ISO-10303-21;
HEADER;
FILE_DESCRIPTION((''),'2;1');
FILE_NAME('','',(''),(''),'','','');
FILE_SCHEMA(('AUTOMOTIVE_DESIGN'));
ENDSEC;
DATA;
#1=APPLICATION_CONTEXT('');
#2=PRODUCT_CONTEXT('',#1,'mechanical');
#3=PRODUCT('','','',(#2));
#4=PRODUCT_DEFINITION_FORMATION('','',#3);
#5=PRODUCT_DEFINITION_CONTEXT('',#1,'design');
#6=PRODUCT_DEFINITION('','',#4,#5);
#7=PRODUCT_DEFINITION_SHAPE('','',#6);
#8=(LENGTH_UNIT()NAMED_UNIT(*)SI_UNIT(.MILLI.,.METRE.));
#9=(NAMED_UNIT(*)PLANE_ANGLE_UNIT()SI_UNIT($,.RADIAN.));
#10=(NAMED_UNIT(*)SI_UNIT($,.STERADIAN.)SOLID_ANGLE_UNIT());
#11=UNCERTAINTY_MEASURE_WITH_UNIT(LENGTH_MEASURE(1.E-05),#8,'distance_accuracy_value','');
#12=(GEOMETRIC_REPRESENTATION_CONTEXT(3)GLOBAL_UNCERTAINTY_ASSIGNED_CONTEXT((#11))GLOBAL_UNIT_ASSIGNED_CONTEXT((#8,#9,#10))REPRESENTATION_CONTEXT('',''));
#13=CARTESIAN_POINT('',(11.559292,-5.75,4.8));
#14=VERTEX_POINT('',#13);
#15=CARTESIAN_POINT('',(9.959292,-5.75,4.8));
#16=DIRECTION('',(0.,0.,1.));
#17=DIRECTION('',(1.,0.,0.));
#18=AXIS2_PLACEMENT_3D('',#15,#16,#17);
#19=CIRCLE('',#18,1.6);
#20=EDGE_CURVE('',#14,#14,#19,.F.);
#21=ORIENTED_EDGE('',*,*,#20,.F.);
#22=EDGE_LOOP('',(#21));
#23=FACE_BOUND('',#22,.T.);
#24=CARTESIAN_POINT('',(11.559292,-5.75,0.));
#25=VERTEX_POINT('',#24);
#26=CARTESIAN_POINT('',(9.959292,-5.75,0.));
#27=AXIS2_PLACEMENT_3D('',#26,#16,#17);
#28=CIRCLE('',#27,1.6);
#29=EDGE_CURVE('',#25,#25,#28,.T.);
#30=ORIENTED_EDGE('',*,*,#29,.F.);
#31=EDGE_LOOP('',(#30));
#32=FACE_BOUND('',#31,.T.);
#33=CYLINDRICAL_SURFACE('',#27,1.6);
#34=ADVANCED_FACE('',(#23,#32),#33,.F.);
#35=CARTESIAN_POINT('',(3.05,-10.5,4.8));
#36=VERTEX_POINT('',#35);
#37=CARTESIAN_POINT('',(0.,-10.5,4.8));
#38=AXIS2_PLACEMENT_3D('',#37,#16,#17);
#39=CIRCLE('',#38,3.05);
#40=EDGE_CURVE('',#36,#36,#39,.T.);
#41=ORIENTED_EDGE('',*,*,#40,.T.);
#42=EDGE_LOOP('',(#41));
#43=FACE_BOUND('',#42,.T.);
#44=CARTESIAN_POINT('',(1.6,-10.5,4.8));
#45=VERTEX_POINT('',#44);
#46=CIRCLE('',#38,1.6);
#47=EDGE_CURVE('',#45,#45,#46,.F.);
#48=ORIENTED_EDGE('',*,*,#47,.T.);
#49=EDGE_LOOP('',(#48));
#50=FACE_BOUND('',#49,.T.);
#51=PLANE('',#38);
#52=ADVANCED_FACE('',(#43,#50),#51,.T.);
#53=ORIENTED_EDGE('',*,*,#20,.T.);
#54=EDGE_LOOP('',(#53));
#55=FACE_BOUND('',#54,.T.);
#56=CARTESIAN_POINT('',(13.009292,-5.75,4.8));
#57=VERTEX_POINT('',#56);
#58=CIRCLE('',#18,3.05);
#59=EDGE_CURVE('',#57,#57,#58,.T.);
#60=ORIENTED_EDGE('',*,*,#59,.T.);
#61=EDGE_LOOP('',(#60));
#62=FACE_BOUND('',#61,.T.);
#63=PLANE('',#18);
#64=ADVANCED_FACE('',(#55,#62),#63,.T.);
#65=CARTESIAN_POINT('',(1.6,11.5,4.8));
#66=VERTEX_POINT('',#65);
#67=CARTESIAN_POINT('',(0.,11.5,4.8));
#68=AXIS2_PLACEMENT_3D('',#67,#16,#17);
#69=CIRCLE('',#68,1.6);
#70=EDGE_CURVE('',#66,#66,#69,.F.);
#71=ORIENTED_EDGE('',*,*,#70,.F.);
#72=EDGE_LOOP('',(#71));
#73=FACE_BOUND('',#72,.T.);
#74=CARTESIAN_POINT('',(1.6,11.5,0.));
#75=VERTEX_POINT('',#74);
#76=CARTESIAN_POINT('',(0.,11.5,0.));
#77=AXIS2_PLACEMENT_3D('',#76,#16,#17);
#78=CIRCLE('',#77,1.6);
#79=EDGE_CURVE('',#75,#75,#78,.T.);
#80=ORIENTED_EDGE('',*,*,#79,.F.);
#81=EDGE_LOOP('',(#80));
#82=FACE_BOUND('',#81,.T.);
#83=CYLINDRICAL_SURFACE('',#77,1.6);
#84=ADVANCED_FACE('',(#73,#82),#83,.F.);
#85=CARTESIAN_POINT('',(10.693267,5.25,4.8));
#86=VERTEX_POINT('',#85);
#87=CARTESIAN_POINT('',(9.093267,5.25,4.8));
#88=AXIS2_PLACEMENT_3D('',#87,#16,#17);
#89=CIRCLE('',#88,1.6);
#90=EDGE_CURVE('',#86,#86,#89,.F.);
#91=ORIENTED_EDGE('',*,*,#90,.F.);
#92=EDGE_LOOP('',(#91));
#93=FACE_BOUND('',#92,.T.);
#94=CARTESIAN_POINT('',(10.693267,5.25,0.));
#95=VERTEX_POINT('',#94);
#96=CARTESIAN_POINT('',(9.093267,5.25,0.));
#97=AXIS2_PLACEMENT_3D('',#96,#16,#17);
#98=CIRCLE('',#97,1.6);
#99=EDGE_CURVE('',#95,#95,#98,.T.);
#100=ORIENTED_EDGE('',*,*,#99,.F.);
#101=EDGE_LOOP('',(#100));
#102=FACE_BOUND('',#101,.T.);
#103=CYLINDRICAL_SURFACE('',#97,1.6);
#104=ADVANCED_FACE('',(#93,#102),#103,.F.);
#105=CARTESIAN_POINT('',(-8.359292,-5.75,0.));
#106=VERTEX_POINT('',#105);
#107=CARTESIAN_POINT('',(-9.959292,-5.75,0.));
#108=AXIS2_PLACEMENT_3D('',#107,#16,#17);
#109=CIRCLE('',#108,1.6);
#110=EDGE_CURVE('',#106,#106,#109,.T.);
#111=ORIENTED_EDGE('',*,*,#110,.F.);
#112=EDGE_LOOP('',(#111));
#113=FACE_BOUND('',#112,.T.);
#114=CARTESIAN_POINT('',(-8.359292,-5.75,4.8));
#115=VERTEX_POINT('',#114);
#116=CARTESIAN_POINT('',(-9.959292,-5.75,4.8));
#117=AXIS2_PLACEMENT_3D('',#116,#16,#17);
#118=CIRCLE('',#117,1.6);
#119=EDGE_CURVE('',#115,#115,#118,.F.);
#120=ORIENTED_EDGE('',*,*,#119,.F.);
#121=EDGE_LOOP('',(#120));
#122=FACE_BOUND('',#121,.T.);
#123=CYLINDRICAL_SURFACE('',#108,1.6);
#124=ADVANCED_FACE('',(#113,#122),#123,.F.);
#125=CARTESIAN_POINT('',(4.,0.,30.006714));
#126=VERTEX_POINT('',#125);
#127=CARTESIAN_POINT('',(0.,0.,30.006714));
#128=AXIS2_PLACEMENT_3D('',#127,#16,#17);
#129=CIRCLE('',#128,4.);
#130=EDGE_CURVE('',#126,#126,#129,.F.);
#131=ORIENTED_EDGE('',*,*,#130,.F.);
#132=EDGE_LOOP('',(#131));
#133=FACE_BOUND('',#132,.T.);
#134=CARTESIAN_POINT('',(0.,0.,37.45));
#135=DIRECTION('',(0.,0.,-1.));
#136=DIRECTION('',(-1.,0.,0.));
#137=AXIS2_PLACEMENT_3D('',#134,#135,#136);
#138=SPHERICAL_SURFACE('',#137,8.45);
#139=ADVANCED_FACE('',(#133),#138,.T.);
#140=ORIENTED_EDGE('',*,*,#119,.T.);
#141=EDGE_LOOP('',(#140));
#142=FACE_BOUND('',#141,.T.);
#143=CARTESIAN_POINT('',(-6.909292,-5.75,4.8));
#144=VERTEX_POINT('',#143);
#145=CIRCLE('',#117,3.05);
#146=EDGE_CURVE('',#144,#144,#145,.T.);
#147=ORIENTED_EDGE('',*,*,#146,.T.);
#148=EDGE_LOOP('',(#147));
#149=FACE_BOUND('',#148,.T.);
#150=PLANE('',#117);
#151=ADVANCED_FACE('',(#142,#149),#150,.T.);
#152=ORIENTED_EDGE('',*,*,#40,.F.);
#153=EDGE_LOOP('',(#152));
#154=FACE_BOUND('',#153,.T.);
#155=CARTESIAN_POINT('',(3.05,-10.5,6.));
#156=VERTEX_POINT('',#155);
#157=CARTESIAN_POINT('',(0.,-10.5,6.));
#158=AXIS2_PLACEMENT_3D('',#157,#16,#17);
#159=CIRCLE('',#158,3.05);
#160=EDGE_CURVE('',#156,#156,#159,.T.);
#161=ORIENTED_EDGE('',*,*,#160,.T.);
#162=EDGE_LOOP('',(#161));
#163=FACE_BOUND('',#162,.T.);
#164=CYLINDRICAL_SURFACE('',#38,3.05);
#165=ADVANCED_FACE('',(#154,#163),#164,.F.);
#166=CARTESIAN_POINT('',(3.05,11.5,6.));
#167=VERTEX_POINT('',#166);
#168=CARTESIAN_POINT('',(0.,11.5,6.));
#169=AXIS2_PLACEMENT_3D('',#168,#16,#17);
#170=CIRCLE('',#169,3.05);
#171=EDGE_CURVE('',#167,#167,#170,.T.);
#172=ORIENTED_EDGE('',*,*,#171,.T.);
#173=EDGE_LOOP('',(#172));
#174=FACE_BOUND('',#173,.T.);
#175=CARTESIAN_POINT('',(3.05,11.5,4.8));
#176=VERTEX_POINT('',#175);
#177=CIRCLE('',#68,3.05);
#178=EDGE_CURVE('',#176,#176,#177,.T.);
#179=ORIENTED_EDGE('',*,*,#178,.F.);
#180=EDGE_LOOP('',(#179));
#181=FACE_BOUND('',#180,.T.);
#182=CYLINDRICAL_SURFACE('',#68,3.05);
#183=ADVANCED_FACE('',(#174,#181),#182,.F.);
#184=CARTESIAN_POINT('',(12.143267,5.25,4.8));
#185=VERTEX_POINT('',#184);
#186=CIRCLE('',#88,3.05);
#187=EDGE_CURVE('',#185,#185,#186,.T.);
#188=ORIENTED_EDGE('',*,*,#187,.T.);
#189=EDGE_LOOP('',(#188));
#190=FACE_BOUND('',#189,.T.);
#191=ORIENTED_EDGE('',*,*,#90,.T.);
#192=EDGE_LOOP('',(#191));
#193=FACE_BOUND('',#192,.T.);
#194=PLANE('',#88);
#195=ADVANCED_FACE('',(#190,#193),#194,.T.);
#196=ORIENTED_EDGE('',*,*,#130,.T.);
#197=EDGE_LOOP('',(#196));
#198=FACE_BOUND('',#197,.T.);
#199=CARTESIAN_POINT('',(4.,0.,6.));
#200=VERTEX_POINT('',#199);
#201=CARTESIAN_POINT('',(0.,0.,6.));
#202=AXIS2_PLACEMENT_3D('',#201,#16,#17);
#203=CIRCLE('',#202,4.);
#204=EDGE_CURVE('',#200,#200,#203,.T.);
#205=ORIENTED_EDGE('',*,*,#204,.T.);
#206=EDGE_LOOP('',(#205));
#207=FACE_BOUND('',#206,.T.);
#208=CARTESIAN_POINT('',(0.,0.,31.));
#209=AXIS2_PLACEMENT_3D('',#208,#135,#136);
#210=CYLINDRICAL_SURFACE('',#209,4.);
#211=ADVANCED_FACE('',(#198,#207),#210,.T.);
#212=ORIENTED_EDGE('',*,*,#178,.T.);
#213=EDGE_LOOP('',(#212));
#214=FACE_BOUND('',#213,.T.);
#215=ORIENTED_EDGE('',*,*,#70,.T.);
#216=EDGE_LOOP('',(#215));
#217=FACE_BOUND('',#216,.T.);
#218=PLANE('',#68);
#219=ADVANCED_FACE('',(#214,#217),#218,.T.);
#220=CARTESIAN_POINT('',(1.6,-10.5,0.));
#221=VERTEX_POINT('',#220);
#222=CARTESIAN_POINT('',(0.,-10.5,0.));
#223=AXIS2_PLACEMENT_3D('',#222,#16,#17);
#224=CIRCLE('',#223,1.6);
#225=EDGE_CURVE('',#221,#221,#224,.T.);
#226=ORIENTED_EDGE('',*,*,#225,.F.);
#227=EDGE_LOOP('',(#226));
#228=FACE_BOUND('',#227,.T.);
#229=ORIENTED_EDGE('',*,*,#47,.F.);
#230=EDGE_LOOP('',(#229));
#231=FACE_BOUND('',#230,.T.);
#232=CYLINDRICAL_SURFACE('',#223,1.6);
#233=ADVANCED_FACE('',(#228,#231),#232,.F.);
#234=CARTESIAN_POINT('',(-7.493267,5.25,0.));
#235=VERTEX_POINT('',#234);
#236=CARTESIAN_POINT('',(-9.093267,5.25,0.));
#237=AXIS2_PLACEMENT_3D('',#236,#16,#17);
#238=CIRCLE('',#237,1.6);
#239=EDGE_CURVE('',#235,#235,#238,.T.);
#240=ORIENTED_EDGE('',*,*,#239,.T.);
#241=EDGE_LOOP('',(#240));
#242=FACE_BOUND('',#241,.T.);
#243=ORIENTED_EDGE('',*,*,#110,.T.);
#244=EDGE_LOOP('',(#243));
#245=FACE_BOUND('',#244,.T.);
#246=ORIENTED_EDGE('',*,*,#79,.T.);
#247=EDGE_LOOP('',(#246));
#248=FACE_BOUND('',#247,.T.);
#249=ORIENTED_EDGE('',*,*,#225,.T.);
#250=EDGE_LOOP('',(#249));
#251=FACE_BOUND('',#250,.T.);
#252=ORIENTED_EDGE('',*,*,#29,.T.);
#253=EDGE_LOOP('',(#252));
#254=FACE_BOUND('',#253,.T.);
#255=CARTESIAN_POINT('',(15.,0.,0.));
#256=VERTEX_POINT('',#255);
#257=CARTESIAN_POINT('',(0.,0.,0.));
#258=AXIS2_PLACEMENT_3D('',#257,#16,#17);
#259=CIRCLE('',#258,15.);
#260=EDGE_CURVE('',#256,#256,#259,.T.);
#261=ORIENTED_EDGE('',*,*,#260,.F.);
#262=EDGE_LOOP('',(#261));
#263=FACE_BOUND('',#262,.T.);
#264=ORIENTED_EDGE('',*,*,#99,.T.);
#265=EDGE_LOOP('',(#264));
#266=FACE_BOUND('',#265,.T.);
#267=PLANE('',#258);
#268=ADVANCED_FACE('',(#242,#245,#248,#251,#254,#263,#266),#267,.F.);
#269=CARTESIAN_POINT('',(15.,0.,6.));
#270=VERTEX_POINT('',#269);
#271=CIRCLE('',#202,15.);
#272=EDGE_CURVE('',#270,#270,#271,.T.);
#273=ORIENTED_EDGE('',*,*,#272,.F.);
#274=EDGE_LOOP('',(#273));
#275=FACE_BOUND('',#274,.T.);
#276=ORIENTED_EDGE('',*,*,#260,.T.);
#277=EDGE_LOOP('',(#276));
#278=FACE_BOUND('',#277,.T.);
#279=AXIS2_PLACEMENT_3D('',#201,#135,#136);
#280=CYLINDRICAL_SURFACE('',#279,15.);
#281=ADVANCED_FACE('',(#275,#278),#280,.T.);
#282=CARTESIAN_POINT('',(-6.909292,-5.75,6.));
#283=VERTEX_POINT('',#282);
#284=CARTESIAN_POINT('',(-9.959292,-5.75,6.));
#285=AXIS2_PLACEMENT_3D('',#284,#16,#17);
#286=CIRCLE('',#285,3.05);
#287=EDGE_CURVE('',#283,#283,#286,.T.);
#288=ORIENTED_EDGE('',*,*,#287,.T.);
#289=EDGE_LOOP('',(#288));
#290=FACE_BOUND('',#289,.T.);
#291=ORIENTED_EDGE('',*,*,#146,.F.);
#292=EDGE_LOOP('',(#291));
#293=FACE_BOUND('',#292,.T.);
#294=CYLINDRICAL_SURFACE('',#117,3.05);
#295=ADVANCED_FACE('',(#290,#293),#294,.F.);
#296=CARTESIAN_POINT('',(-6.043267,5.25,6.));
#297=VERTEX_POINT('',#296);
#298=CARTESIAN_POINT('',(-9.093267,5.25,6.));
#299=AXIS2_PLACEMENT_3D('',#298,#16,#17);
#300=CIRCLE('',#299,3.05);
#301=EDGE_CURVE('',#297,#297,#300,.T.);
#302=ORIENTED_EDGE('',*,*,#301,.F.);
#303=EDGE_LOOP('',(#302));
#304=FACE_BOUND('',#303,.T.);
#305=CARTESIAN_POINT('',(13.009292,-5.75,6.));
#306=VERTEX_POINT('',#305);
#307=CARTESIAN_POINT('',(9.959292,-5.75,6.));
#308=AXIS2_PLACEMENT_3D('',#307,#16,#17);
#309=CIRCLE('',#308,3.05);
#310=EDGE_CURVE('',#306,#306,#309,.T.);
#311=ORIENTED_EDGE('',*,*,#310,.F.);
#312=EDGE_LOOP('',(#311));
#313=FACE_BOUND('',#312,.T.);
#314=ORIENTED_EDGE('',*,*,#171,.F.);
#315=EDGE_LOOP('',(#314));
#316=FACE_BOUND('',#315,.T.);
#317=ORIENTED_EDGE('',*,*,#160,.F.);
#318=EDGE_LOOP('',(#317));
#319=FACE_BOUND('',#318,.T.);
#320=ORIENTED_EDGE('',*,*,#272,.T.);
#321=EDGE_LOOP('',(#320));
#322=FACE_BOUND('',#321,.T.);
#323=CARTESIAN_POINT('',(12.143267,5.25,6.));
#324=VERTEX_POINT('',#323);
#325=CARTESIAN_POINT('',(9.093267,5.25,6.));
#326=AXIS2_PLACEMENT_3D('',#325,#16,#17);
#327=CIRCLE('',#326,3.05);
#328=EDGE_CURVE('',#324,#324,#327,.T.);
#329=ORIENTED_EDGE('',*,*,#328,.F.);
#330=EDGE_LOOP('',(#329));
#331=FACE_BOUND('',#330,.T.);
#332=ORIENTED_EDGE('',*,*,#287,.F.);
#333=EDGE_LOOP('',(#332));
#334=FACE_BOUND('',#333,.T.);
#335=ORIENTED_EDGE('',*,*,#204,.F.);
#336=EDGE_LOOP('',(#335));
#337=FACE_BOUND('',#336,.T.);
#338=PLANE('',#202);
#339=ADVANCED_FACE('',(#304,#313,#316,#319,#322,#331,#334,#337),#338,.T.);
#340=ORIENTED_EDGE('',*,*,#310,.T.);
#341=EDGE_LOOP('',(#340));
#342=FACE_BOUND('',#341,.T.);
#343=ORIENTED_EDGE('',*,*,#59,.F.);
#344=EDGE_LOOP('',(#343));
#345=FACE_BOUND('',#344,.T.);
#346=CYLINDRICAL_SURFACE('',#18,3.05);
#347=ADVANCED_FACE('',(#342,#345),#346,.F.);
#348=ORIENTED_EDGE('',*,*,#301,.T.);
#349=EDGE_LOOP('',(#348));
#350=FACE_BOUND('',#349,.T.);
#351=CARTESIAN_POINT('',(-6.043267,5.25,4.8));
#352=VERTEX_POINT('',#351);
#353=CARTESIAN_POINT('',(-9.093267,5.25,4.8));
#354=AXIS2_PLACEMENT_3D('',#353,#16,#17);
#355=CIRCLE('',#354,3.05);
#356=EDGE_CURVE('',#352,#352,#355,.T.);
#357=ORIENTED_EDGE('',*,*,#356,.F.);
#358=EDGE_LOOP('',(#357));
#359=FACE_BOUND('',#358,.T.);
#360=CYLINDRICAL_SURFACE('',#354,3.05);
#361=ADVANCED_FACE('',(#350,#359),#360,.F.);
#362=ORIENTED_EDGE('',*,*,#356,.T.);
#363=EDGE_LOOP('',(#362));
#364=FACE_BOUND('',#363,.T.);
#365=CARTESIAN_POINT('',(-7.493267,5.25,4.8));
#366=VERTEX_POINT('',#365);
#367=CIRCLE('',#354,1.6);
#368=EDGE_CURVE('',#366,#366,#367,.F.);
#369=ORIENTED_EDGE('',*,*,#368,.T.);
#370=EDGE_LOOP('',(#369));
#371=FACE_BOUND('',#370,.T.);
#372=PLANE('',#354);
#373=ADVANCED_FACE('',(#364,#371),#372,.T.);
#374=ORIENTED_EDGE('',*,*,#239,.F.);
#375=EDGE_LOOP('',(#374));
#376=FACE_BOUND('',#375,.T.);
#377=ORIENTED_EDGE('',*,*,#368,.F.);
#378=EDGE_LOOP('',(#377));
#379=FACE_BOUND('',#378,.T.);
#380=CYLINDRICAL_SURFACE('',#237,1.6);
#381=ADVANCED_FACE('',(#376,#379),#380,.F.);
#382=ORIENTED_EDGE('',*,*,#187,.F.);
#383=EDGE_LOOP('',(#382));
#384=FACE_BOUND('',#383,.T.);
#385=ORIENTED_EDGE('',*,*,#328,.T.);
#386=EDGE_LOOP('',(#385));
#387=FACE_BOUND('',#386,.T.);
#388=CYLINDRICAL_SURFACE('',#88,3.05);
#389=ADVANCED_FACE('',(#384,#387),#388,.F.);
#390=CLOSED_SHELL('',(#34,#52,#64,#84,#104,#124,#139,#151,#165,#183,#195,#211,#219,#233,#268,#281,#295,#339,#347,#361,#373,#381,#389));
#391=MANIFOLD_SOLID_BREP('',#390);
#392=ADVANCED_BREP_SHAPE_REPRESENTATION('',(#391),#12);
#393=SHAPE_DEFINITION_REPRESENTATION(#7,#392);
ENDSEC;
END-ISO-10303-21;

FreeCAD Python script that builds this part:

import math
import FreeCAD as App
import Part
import Sketcher
from FreeCAD import Vector
Q = App.Units.Quantity

doc = App.newDocument("Part")
params = doc.addObject("Spreadsheet::Sheet", "Params")
for row, (alias, value) in enumerate([
    ("sketch1_diameter", "30 mm"),
    ("pad1_length", "6 mm"),
    ("sketch2_diameter", "3.2 mm"),
    ("sketch3_diameter", "6.1 mm"),
    ("pocket2_length", "1.2 mm"),
    ("sketch4_diameter", "8 mm"),
    ("pad2_length", "25 mm"),
    ("sketch5_radius", "8.45 mm"),
    ("revolution_angle", "360 deg"),
], start=1):
    params.set(f"A{row}", alias)
    params.set(f"B{row}", "=" + value)
    params.setAlias(f"B{row}", alias)

body = doc.addObject("PartDesign::Body", "Body")

# Sketch on XY plane
sketch1 = body.newObject("Sketcher::SketchObject", "Sketch")
sketch1.AttachmentSupport = (doc.getObject("XY_Plane"), [""])
sketch1.MapMode = "FlatFace"
sketch1.addGeometry(Part.Circle(Vector(0, 0, 0), Vector(0, 0, 1), 15), False)
sketch1.addConstraint([
    Sketcher.Constraint("Coincident", 0, 3, -1, 1),
    Sketcher.Constraint("Diameter", 0, Q("30 mm")),
])
sketch1.setExpression("Constraints[1]", "Params.sketch1_diameter")
pad1 = body.newObject("PartDesign::Pad", "Pad")
pad1.Profile = sketch1
pad1.setExpression("Length", "Params.pad1_length")

# Sketch on XY plane
sketch2 = body.newObject("Sketcher::SketchObject", "Sketch001")
sketch2.AttachmentSupport = (doc.getObject("XY_Plane"), [""])
sketch2.MapMode = "FlatFace"
sketch2.AttachmentOffset = App.Placement(Vector(0, 0, 6), App.Rotation())
sketch2.addGeometry([
    Part.Circle(Vector(0, 11.5, 0), Vector(0, 0, 1), 1.6),  # 0
    Part.Circle(Vector(9.959292, -5.75, 0), Vector(0, 0, 1), 1.6),  # 1
    Part.Circle(Vector(-9.959292, -5.75, 0), Vector(0, 0, 1), 1.6),  # 2
    Part.Circle(Vector(-9.093267, 5.25, 0), Vector(0, 0, 1), 1.6),  # 3
    Part.Circle(Vector(9.093267, 5.25, 0), Vector(0, 0, 1), 1.6),  # 4
    Part.Circle(Vector(0, -10.5, 0), Vector(0, 0, 1), 1.6),  # 5
], False)
sketch2.addConstraint([
    Sketcher.Constraint("Equal", 0, 1),
    Sketcher.Constraint("Equal", 1, 2),
    Sketcher.Constraint("Equal", 2, 3),
    Sketcher.Constraint("Equal", 3, 4),
    Sketcher.Constraint("Equal", 4, 5),
    Sketcher.Constraint("Symmetric", 1, 3, 2, 3, -2),
    Sketcher.Constraint("Symmetric", 3, 3, 4, 3, -2),
    Sketcher.Constraint("PointOnObject", 0, 3, -2),
    Sketcher.Constraint("PointOnObject", 5, 3, -2),
    Sketcher.Constraint("Diameter", 0, Q("3.2 mm")),
    Sketcher.Constraint("DistanceY", 2, 3, 3, 3, Q("11 mm")),
    Sketcher.Constraint("DistanceY", 5, 3, 0, 3, Q("22 mm")),
    Sketcher.Constraint("DistanceY", -1, 1, 0, 3, Q("11.5 mm")),
    Sketcher.Constraint("DistanceY", 1, 3, -1, 1, Q("5.75 mm")),
    Sketcher.Constraint("DistanceX", 3, 3, 1, 3, Q("19.052559 mm")),
    Sketcher.Constraint("DistanceX", -1, 1, 1, 3, Q("9.959292 mm")),
])
sketch2.setExpression("Constraints[9]", "Params.sketch2_diameter")
pocket1 = body.newObject("PartDesign::Pocket", "Pocket")
pocket1.Profile = sketch2
pocket1.Type = "ThroughAll"

# Sketch on XY plane
sketch3 = body.newObject("Sketcher::SketchObject", "Sketch002")
sketch3.AttachmentSupport = (doc.getObject("XY_Plane"), [""])
sketch3.MapMode = "FlatFace"
sketch3.AttachmentOffset = App.Placement(Vector(0, 0, 6), App.Rotation())
sketch3.addGeometry([
    Part.Circle(Vector(-9.093267, 5.25, 0), Vector(0, 0, 1), 3.05),  # 0
    Part.Circle(Vector(0, 11.5, 0), Vector(0, 0, 1), 3.05),  # 1
    Part.Circle(Vector(9.093267, 5.25, 0), Vector(0, 0, 1), 3.05),  # 2
    Part.Circle(Vector(9.959292, -5.75, 0), Vector(0, 0, 1), 3.05),  # 3
    Part.Circle(Vector(0, -10.5, 0), Vector(0, 0, 1), 3.05),  # 4
    Part.Circle(Vector(-9.959292, -5.75, 0), Vector(0, 0, 1), 3.05),  # 5
], False)
sketch3.addConstraint([
    Sketcher.Constraint("Equal", 0, 1),
    Sketcher.Constraint("Equal", 1, 2),
    Sketcher.Constraint("Equal", 2, 3),
    Sketcher.Constraint("Equal", 3, 4),
    Sketcher.Constraint("Equal", 4, 5),
    Sketcher.Constraint("Symmetric", 0, 3, 2, 3, -2),
    Sketcher.Constraint("Symmetric", 3, 3, 5, 3, -2),
    Sketcher.Constraint("PointOnObject", 1, 3, -2),
    Sketcher.Constraint("PointOnObject", 4, 3, -2),
    Sketcher.Constraint("Diameter", 0, Q("6.1 mm")),
    Sketcher.Constraint("DistanceY", 3, 3, 2, 3, Q("11 mm")),
    Sketcher.Constraint("DistanceY", 4, 3, 1, 3, Q("22 mm")),
    Sketcher.Constraint("DistanceY", -1, 1, 1, 3, Q("11.5 mm")),
    Sketcher.Constraint("DistanceY", -1, 1, 0, 3, Q("5.25 mm")),
    Sketcher.Constraint("DistanceX", 0, 3, 3, 3, Q("19.052559 mm")),
    Sketcher.Constraint("DistanceX", 0, 3, -1, 1, Q("9.093267 mm")),
])
sketch3.setExpression("Constraints[9]", "Params.sketch3_diameter")
pocket2 = body.newObject("PartDesign::Pocket", "Pocket001")
pocket2.Profile = sketch3
pocket2.setExpression("Length", "Params.pocket2_length")

# Sketch on XY plane
sketch4 = body.newObject("Sketcher::SketchObject", "Sketch003")
sketch4.AttachmentSupport = (doc.getObject("XY_Plane"), [""])
sketch4.MapMode = "FlatFace"
sketch4.AttachmentOffset = App.Placement(Vector(0, 0, 6), App.Rotation())
sketch4.addGeometry(Part.Circle(Vector(0, 0, 0), Vector(0, 0, 1), 4), False)
sketch4.addConstraint([
    Sketcher.Constraint("Coincident", 0, 3, -1, 1),
    Sketcher.Constraint("Diameter", 0, Q("8 mm")),
])
sketch4.setExpression("Constraints[1]", "Params.sketch4_diameter")
pad2 = body.newObject("PartDesign::Pad", "Pad001")
pad2.Profile = sketch4
pad2.setExpression("Length", "Params.pad2_length")

# Sketch on XZ plane
sketch5 = body.newObject("Sketcher::SketchObject", "Sketch004")
sketch5.AttachmentSupport = (doc.getObject("XZ_Plane"), [""])
sketch5.MapMode = "FlatFace"
sketch5.addGeometry([
    Part.LineSegment(Vector(0, 45.9, 0), Vector(0, 29, 0)),
    Part.ArcOfCircle(Part.Circle(Vector(0, 37.45, 0), Vector(0, 0, 1), 8.45), math.radians(90), math.radians(270)),
], False)
sketch5.addConstraint([
    Sketcher.Constraint("Coincident", 0, 1, 1, 1),
    Sketcher.Constraint("Coincident", 1, 2, 0, 2),
    Sketcher.Constraint("Vertical", 0),
    Sketcher.Constraint("PointOnObject", 1, 3, -2),
    Sketcher.Constraint("PointOnObject", 0, 1, -2),
    Sketcher.Constraint("Radius", 1, Q("8.45 mm")),
    Sketcher.Constraint("DistanceY", -1, 1, 1, 2, Q("29 mm")),
])
sketch5.setExpression("Constraints[5]", "Params.sketch5_radius")
revolution = body.newObject("PartDesign::Revolution", "Revolution")
revolution.Profile = sketch5
revolution.ReferenceAxis = (sketch5, ["V_Axis"])
revolution.setExpression("Angle", "Params.revolution_angle")

doc.recompute()
